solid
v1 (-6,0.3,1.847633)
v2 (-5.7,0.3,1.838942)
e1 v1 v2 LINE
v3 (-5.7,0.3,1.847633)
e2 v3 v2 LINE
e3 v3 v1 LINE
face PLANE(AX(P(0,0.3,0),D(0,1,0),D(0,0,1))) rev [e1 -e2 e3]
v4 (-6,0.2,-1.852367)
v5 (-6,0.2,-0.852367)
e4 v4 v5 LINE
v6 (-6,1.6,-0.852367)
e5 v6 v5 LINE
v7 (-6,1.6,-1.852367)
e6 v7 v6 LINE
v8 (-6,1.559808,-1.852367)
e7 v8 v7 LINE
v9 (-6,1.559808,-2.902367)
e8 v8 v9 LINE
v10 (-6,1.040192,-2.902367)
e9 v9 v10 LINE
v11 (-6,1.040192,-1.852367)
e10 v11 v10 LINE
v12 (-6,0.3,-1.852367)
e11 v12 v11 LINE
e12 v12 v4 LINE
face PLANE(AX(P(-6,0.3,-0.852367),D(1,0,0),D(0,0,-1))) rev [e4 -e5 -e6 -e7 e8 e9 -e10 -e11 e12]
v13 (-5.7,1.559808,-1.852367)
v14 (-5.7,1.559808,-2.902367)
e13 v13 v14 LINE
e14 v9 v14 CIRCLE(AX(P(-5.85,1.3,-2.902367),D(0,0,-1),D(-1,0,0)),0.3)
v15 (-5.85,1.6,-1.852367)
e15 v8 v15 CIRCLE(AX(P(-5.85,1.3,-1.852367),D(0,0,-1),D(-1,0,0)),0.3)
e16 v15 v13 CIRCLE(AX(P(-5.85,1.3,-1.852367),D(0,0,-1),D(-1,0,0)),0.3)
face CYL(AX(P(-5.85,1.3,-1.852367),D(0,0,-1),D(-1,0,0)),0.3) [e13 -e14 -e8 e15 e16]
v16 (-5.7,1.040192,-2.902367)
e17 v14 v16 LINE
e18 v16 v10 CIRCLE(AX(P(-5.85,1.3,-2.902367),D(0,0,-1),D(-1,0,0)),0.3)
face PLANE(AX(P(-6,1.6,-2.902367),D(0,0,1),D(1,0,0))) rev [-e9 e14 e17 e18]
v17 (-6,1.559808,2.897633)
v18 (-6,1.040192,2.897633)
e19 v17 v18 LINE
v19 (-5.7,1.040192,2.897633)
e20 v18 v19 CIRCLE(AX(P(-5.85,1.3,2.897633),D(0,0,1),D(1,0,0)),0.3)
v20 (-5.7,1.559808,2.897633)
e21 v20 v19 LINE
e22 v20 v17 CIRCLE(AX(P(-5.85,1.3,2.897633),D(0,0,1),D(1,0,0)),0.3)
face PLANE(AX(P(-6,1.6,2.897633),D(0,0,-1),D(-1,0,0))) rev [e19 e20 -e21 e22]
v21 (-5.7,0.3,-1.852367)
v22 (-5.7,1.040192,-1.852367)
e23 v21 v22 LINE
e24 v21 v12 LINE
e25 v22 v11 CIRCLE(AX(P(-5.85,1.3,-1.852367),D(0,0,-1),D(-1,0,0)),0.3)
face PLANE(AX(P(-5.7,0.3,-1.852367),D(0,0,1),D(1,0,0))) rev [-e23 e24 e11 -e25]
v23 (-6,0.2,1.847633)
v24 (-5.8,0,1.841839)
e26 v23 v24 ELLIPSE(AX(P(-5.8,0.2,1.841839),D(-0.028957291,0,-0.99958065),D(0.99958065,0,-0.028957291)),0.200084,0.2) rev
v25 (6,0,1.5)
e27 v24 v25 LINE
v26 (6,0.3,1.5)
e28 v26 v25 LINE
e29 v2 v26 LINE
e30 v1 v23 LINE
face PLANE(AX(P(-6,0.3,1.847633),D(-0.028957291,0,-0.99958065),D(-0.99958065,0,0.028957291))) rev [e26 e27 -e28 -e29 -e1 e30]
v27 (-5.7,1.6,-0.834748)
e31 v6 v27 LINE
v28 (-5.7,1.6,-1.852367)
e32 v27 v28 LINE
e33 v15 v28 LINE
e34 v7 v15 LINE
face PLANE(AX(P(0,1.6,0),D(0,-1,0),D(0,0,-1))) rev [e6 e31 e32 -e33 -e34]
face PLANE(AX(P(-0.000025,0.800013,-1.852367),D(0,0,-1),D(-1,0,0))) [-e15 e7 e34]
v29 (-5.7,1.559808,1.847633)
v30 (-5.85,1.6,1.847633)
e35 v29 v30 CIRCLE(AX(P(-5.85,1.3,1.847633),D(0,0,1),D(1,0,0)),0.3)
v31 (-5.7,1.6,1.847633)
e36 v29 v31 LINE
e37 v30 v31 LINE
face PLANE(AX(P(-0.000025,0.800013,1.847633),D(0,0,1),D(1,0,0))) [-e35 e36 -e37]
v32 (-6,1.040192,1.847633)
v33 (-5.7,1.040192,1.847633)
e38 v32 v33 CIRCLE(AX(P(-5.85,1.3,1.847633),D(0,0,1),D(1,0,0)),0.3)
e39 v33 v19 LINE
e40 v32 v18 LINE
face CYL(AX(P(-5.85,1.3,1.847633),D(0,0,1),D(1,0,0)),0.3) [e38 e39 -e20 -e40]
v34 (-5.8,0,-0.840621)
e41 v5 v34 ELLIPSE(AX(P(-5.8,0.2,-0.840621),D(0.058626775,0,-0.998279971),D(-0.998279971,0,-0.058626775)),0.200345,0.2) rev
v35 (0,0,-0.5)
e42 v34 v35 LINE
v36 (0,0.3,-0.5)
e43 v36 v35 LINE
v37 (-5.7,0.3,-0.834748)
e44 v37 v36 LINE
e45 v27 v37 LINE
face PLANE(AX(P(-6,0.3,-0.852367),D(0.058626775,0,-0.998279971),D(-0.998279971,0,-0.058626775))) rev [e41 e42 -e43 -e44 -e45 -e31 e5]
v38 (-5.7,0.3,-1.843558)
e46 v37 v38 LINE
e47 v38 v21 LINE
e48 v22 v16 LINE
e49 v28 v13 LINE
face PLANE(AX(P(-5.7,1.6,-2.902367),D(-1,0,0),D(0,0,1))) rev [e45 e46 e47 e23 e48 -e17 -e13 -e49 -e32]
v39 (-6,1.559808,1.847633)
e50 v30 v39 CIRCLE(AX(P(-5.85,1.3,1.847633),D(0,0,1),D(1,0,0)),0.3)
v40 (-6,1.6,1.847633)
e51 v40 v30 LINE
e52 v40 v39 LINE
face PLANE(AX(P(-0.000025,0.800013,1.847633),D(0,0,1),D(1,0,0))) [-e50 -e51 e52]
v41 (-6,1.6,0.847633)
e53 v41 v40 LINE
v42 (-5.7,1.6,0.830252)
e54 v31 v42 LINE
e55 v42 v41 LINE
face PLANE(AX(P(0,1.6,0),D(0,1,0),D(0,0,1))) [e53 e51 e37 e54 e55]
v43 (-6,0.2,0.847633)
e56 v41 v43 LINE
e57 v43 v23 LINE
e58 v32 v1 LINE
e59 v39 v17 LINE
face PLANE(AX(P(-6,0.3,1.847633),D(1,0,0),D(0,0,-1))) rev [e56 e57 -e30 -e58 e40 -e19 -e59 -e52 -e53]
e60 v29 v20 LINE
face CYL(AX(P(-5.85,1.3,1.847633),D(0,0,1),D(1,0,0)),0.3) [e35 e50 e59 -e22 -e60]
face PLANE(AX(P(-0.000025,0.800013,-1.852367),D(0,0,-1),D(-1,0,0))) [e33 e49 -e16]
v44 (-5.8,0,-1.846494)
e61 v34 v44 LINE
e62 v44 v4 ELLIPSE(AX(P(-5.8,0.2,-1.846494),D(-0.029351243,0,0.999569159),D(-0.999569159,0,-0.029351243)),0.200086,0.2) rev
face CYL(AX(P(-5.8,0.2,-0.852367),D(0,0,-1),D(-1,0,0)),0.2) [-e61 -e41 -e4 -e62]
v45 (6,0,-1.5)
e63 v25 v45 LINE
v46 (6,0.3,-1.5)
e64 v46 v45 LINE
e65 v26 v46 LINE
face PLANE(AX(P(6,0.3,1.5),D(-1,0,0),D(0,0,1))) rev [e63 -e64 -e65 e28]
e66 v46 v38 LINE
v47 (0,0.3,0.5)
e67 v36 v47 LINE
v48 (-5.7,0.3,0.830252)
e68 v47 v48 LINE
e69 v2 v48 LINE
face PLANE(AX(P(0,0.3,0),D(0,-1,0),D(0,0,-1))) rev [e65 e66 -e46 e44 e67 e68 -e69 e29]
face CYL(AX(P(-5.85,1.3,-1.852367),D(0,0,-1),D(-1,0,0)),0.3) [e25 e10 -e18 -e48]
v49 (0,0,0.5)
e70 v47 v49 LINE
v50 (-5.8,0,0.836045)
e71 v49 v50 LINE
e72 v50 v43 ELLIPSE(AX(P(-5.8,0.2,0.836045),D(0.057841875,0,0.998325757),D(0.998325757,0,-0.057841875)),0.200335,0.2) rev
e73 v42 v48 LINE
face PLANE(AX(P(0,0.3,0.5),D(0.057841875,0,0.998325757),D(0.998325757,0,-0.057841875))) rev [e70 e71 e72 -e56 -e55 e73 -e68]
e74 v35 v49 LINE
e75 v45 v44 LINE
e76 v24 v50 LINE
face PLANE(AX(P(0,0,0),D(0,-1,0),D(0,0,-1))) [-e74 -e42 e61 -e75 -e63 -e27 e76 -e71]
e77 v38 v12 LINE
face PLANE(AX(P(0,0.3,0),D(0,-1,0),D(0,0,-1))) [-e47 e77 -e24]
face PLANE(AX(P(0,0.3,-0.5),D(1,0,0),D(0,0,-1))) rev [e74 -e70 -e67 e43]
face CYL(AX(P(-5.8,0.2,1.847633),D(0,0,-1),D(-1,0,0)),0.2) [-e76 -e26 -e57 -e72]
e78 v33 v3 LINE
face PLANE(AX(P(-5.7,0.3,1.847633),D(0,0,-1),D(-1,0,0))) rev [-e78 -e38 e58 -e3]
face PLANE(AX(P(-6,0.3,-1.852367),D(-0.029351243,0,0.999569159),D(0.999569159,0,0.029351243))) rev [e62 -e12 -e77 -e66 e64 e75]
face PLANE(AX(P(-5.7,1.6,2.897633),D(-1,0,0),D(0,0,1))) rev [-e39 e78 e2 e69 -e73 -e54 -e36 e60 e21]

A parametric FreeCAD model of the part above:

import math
import FreeCAD as App
import Part
import Sketcher
from FreeCAD import Vector


def edges_at(feature, points):
    """Names of the edges that pass closest to the given points."""
    edges = feature.Shape.Edges
    near = lambda p: min(range(len(edges)), key=lambda i: edges[i].distToShape(Part.Vertex(*p))[0])
    return sorted({f"Edge{near(p) + 1}" for p in points})

doc = App.newDocument("Part")
body = doc.addObject("PartDesign::Body", "Body")

sketch1 = body.newObject("Sketcher::SketchObject", "Sketch")
sketch1.AttachmentSupport = (doc.getObject("XZ_Plane"), [""])
sketch1.MapMode = "FlatFace"
sketch1.addGeometry([
    Part.LineSegment(Vector(6, -1.5, 0), Vector(-6, -1.9, 0)),
    Part.LineSegment(Vector(-6, -1.9, 0), Vector(-6, -0.9, 0)),
    Part.LineSegment(Vector(-6, -0.9, 0), Vector(0, -0.5, 0)),
    Part.LineSegment(Vector(0, -0.5, 0), Vector(0, 0.5, 0)),
    Part.LineSegment(Vector(0, 0.5, 0), Vector(-6, 0.8, 0)),
    Part.LineSegment(Vector(-6, 0.8, 0), Vector(-6, 1.8, 0)),
    Part.LineSegment(Vector(-6, 1.8, 0), Vector(6, 1.5, 0)),
    Part.LineSegment(Vector(6, 1.5, 0), Vector(6, -1.5, 0)),
], False)
sketch1.addConstraint([
    Sketcher.Constraint("Coincident", 0, 2, 1, 1),
    Sketcher.Constraint("Coincident", 1, 2, 2, 1),
    Sketcher.Constraint("Coincident", 2, 2, 3, 1),
    Sketcher.Constraint("Coincident", 3, 2, 4, 1),
    Sketcher.Constraint("Coincident", 4, 2, 5, 1),
    Sketcher.Constraint("Coincident", 5, 2, 6, 1),
    Sketcher.Constraint("Coincident", 6, 2, 7, 1),
    Sketcher.Constraint("Coincident", 7, 2, 0, 1),
    Sketcher.Constraint("Vertical", 1),
    Sketcher.Constraint("Vertical", 3),
    Sketcher.Constraint("Vertical", 5),
    Sketcher.Constraint("Vertical", 7),
    Sketcher.Constraint("Symmetric", 2, 2, 3, 2, -1, 1),
    Sketcher.Constraint("Vertical", 1, 2, 4, 2),
    Sketcher.Constraint("Equal", 1, 3),
    Sketcher.Constraint("Equal", 3, 5),
    Sketcher.Constraint("DistanceY", 1, 1, 1, 2, 1.0),
    Sketcher.Constraint("DistanceY", 7, 2, 7, 1, 3.0),
    Sketcher.Constraint("DistanceX", 0, 2, -1, 1, 6.0),
    Sketcher.Constraint("DistanceX", -1, 1, 6, 2, 6.0),
    Sketcher.Constraint("DistanceY", 3, 2, 6, 2, 1.0),
    Sketcher.Constraint("DistanceY", 1, 2, 4, 2, 1.7),
    Sketcher.Constraint("Distance", 0, 12.005172),
])
pad1 = body.newObject("PartDesign::Pad", "Pad")
pad1.Profile = sketch1
pad1.Length = 0.3
pad1.Reversed = True

sketch2 = body.newObject("Sketcher::SketchObject", "Sketch001")
sketch2.AttachmentSupport = (doc.getObject("XZ_Plane"), [""])
sketch2.MapMode = "FlatFace"
sketch2.AttachmentOffset = App.Placement(Vector(0, 0, -0.3), App.Rotation())
sketch2.addGeometry([
    Part.LineSegment(Vector(-6, -2.9, 0), Vector(-6, -0.85, 0)),
    Part.LineSegment(Vector(-6, -0.85, 0), Vector(-5.7, -0.83, 0)),
    Part.LineSegment(Vector(-5.7, -0.83, 0), Vector(-5.7, -2.9, 0)),
    Part.LineSegment(Vector(-5.7, -2.9, 0), Vector(-6, -2.9, 0)),
    Part.LineSegment(Vector(-6, 0.85, 0), Vector(-6, 2.9, 0)),
    Part.LineSegment(Vector(-6, 2.9, 0), Vector(-5.7, 2.9, 0)),
    Part.LineSegment(Vector(-5.7, 2.9, 0), Vector(-5.7, 0.83, 0)),
    Part.LineSegment(Vector(-5.7, 0.83, 0), Vector(-6, 0.85, 0)),
], False)
sketch2.addConstraint([
    Sketcher.Constraint("Coincident", 0, 2, 1, 1),
    Sketcher.Constraint("Coincident", 1, 2, 2, 1),
    Sketcher.Constraint("Coincident", 2, 2, 3, 1),
    Sketcher.Constraint("Coincident", 3, 2, 0, 1),
    Sketcher.Constraint("Coincident", 4, 2, 5, 1),
    Sketcher.Constraint("Coincident", 5, 2, 6, 1),
    Sketcher.Constraint("Coincident", 6, 2, 7, 1),
    Sketcher.Constraint("Coincident", 7, 2, 4, 1),
    Sketcher.Constraint("Vertical", 0),
    Sketcher.Constraint("Vertical", 2),
    Sketcher.Constraint("Horizontal", 3),
    Sketcher.Constraint("Vertical", 4),
    Sketcher.Constraint("Horizontal", 5),
    Sketcher.Constraint("Vertical", 6),
    Sketcher.Constraint("Vertical", 3, 2, 4, 2),
    Sketcher.Constraint("Vertical", 2, 2, 5, 2),
    Sketcher.Constraint("Equal", 0, 4),
    Sketcher.Constraint("DistanceX", 3, 2, 3, 1, 0.3),
    Sketcher.Constraint("DistanceX", 0, 2, -1, 1, 6.0),
    Sketcher.Constraint("DistanceY", 0, 1, 0, 2, 2.05),
    Sketcher.Constraint("DistanceY", 3, 2, 4, 2, 5.8),
    Sketcher.Constraint("DistanceY", 1, 2, 6, 2, 1.665),
    Sketcher.Constraint("DistanceY", 2, 2, 2, 1, 2.067618),
    Sketcher.Constraint("DistanceY", 1, 2, -1, 1, 0.834748),
])
pad2 = body.newObject("PartDesign::Pad", "Pad001")
pad2.Profile = sketch2
pad2.Length = 1.3
pad2.Reversed = True

sketch3 = body.newObject("Sketcher::SketchObject", "Sketch002")
sketch3.AttachmentSupport = (doc.getObject("YZ_Plane"), [""])
sketch3.MapMode = "FlatFace"
sketch3.AttachmentOffset = App.Placement(Vector(0, 0, -6), App.Rotation())
sketch3.addGeometry([
    Part.LineSegment(Vector(1, -2.9, 0), Vector(0.3, -2.9, 0)),
    Part.LineSegment(Vector(0.3, -2.9, 0), Vector(0.3, -1.9, 0)),
    Part.LineSegment(Vector(0.3, -1.9, 0), Vector(1, -1.9, 0)),
    Part.LineSegment(Vector(1, -1.9, 0), Vector(1, -2.9, 0)),
    Part.LineSegment(Vector(1, 1.8, 0), Vector(0.3, 1.8, 0)),
    Part.LineSegment(Vector(0.3, 1.8, 0), Vector(0.3, 2.9, 0)),
    Part.LineSegment(Vector(0.3, 2.9, 0), Vector(1, 2.9, 0)),
    Part.LineSegment(Vector(1, 2.9, 0), Vector(1, 1.8, 0)),
], False)
sketch3.addConstraint([
    Sketcher.Constraint("Coincident", 0, 2, 1, 1),
    Sketcher.Constraint("Coincident", 1, 2, 2, 1),
    Sketcher.Constraint("Coincident", 2, 2, 3, 1),
    Sketcher.Constraint("Coincident", 3, 2, 0, 1),
    Sketcher.Constraint("Coincident", 4, 2, 5, 1),
    Sketcher.Constraint("Coincident", 5, 2, 6, 1),
    Sketcher.Constraint("Coincident", 6, 2, 7, 1),
    Sketcher.Constraint("Coincident", 7, 2, 4, 1),
    Sketcher.Constraint("Horizontal", 0),
    Sketcher.Constraint("Vertical", 1),
    Sketcher.Constraint("Horizontal", 2),
    Sketcher.Constraint("Vertical", 3),
    Sketcher.Constraint("Horizontal", 4),
    Sketcher.Constraint("Vertical", 5),
    Sketcher.Constraint("Horizontal", 6),
    Sketcher.Constraint("Vertical", 7),
    Sketcher.Constraint("Vertical", 1, 2, 4, 2),
    Sketcher.Constraint("Vertical", 3, 2, 6, 2),
    Sketcher.Constraint("Equal", 3, 5),
    Sketcher.Constraint("DistanceX", 0, 2, 0, 1, 0.7),
    Sketcher.Constraint("DistanceX", -1, 1, 2, 2, 1.0),
    Sketcher.Constraint("DistanceY", 1, 1, 1, 2, 1.05),
    Sketcher.Constraint("DistanceY", 1, 2, 4, 2, 3.7),
    Sketcher.Constraint("DistanceY", 0, 2, -1, 1, 2.902367),
])
pocket1 = body.newObject("PartDesign::Pocket", "Pocket")
pocket1.Profile = sketch3
pocket1.Length = 0.3
pocket1.Reversed = True
doc.recompute()

fillet = body.newObject("PartDesign::Fillet", "Fillet")
fillet.Base = (pocket1, edges_at(pocket1, [(-6, 0, -1.352), (-6, 0, 1.348)]))
fillet.Radius = 0.2

sketch4 = body.newObject("Sketcher::SketchObject", "Sketch003")
sketch4.AttachmentSupport = (doc.getObject("XY_Plane"), [""])
sketch4.MapMode = "FlatFace"
sketch4.AttachmentOffset = App.Placement(Vector(0, 0, -2.902367), App.Rotation())
sketch4.addGeometry([
    Part.LineSegment(Vector(8.34, 3.94, 0), Vector(8.34, -2.34, 0)),
    Part.LineSegment(Vector(8.34, -2.34, 0), Vector(-8.34, -2.34, 0)),
    Part.LineSegment(Vector(-8.34, -2.34, 0), Vector(-8.34, 3.94, 0)),
    Part.LineSegment(Vector(-8.34, 3.94, 0), Vector(8.34, 3.94, 0)),
    Part.LineSegment(Vector(-5.7, 1.04, 0), Vector(-5.7, 1.56, 0)),
    Part.ArcOfCircle(Part.Circle(Vector(-5.85, 1.3, 0), Vector(0, 0, 1), 0.3), math.radians(60), math.radians(120)),
    Part.LineSegment(Vector(-6, 1.56, 0), Vector(-6, 1.04, 0)),
    Part.ArcOfCircle(Part.Circle(Vector(-5.85, 1.3, 0), Vector(0, 0, 1), 0.3), math.radians(-120), math.radians(-60)),
], False)
sketch4.addConstraint([
    Sketcher.Constraint("Coincident", 0, 2, 1, 1),
    Sketcher.Constraint("Coincident", 1, 2, 2, 1),
    Sketcher.Constraint("Coincident", 2, 2, 3, 1),
    Sketcher.Constraint("Coincident", 3, 2, 0, 1),
    Sketcher.Constraint("Coincident", 4, 2, 5, 1),
    Sketcher.Constraint("Coincident", 5, 2, 6, 1),
    Sketcher.Constraint("Coincident", 6, 2, 7, 1),
    Sketcher.Constraint("Coincident", 7, 2, 4, 1),
    Sketcher.Constraint("Vertical", 0),
    Sketcher.Constraint("Horizontal", 1),
    Sketcher.Constraint("Vertical", 2),
    Sketcher.Constraint("Horizontal", 3),
    Sketcher.Constraint("Vertical", 4),
    Sketcher.Constraint("Vertical", 6),
    Sketcher.Constraint("Coincident", 7, 3, 5, 3),
    Sketcher.Constraint("Equal", 5, 7),
    Sketcher.Constraint("Horizontal", 4, 2, 5, 2),
    Sketcher.Constraint("Radius", 5, 0.3),
    Sketcher.Constraint("DistanceX", 5, 2, -1, 1, 6.0),
    Sketcher.Constraint("DistanceY", -1, 1, 5, 3, 1.3),
    Sketcher.Constraint("DistanceX", 4, 2, -1, 1, 5.7),
    Sketcher.Constraint("DistanceX", 1, 2, 1, 1, 16.684),
    Sketcher.Constraint("DistanceY", 0, 2, 0, 1, 6.284),
    Sketcher.Constraint("DistanceX", -1, 1, 0, 2, 8.342),
    Sketcher.Constraint("DistanceY", 0, 2, -1, 1, 2.342),
])
pocket2 = body.newObject("PartDesign::Pocket", "Pocket001")
pocket2.Profile = sketch4
pocket2.Length = 1.05
pocket2.Reversed = True

sketch5 = body.newObject("Sketcher::SketchObject", "Sketch004")
sketch5.AttachmentSupport = (doc.getObject("XY_Plane"), [""])
sketch5.MapMode = "FlatFace"
sketch5.AttachmentOffset = App.Placement(Vector(0, 0, 2.897633), App.Rotation())
sketch5.addGeometry([
    Part.LineSegment(Vector(-8.34, 3.94, 0), Vector(-8.34, -2.34, 0)),
    Part.LineSegment(Vector(-8.34, -2.34, 0), Vector(8.34, -2.34, 0)),
    Part.LineSegment(Vector(8.34, -2.34, 0), Vector(8.34, 3.94, 0)),
    Part.LineSegment(Vector(8.34, 3.94, 0), Vector(-8.34, 3.94, 0)),
    Part.ArcOfCircle(Part.Circle(Vector(-5.85, 1.3, 0), Vector(0, 0, 1), 0.3), math.radians(60), math.radians(120)),
    Part.LineSegment(Vector(-5.7, 1.56, 0), Vector(-5.7, 1.04, 0)),
    Part.ArcOfCircle(Part.Circle(Vector(-5.85, 1.3, 0), Vector(0, 0, 1), 0.3), math.radians(-120), math.radians(-60)),
    Part.LineSegment(Vector(-6, 1.04, 0), Vector(-6, 1.56, 0)),
], False)
sketch5.addConstraint([
    Sketcher.Constraint("Coincident", 0, 2, 1, 1),
    Sketcher.Constraint("Coincident", 1, 2, 2, 1),
    Sketcher.Constraint("Coincident", 2, 2, 3, 1),
    Sketcher.Constraint("Coincident", 3, 2, 0, 1),
    Sketcher.Constraint("Coincident", 4, 1, 5, 1),
    Sketcher.Constraint("Coincident", 5, 2, 6, 2),
    Sketcher.Constraint("Coincident", 6, 1, 7, 1),
    Sketcher.Constraint("Coincident", 7, 2, 4, 2),
    Sketcher.Constraint("Vertical", 0),
    Sketcher.Constraint("Horizontal", 1),
    Sketcher.Constraint("Vertical", 2),
    Sketcher.Constraint("Horizontal", 3),
    Sketcher.Constraint("Vertical", 5),
    Sketcher.Constraint("Vertical", 7),
    Sketcher.Constraint("Coincident", 6, 3, 4, 3),
    Sketcher.Constraint("Equal", 4, 6),
    Sketcher.Constraint("Horizontal", 5, 2, 6, 1),
    Sketcher.Constraint("Radius", 4, 0.3),
    Sketcher.Constraint("DistanceX", 6, 1, -1, 1, 6.0),
    Sketcher.Constraint("DistanceY", -1, 1, 4, 3, 1.3),
    Sketcher.Constraint("DistanceX", 4, 1, -1, 1, 5.7),
    Sketcher.Constraint("DistanceX", 1, 1, 1, 2, 16.684),
    Sketcher.Constraint("DistanceY", 0, 2, 0, 1, 6.284),
    Sketcher.Constraint("DistanceX", 0, 2, -1, 1, 8.342),
    Sketcher.Constraint("DistanceY", 0, 2, -1, 1, 2.342),
])
pocket3 = body.newObject("PartDesign::Pocket", "Pocket002")
pocket3.Profile = sketch5
pocket3.Length = 1.05

doc.recompute()
